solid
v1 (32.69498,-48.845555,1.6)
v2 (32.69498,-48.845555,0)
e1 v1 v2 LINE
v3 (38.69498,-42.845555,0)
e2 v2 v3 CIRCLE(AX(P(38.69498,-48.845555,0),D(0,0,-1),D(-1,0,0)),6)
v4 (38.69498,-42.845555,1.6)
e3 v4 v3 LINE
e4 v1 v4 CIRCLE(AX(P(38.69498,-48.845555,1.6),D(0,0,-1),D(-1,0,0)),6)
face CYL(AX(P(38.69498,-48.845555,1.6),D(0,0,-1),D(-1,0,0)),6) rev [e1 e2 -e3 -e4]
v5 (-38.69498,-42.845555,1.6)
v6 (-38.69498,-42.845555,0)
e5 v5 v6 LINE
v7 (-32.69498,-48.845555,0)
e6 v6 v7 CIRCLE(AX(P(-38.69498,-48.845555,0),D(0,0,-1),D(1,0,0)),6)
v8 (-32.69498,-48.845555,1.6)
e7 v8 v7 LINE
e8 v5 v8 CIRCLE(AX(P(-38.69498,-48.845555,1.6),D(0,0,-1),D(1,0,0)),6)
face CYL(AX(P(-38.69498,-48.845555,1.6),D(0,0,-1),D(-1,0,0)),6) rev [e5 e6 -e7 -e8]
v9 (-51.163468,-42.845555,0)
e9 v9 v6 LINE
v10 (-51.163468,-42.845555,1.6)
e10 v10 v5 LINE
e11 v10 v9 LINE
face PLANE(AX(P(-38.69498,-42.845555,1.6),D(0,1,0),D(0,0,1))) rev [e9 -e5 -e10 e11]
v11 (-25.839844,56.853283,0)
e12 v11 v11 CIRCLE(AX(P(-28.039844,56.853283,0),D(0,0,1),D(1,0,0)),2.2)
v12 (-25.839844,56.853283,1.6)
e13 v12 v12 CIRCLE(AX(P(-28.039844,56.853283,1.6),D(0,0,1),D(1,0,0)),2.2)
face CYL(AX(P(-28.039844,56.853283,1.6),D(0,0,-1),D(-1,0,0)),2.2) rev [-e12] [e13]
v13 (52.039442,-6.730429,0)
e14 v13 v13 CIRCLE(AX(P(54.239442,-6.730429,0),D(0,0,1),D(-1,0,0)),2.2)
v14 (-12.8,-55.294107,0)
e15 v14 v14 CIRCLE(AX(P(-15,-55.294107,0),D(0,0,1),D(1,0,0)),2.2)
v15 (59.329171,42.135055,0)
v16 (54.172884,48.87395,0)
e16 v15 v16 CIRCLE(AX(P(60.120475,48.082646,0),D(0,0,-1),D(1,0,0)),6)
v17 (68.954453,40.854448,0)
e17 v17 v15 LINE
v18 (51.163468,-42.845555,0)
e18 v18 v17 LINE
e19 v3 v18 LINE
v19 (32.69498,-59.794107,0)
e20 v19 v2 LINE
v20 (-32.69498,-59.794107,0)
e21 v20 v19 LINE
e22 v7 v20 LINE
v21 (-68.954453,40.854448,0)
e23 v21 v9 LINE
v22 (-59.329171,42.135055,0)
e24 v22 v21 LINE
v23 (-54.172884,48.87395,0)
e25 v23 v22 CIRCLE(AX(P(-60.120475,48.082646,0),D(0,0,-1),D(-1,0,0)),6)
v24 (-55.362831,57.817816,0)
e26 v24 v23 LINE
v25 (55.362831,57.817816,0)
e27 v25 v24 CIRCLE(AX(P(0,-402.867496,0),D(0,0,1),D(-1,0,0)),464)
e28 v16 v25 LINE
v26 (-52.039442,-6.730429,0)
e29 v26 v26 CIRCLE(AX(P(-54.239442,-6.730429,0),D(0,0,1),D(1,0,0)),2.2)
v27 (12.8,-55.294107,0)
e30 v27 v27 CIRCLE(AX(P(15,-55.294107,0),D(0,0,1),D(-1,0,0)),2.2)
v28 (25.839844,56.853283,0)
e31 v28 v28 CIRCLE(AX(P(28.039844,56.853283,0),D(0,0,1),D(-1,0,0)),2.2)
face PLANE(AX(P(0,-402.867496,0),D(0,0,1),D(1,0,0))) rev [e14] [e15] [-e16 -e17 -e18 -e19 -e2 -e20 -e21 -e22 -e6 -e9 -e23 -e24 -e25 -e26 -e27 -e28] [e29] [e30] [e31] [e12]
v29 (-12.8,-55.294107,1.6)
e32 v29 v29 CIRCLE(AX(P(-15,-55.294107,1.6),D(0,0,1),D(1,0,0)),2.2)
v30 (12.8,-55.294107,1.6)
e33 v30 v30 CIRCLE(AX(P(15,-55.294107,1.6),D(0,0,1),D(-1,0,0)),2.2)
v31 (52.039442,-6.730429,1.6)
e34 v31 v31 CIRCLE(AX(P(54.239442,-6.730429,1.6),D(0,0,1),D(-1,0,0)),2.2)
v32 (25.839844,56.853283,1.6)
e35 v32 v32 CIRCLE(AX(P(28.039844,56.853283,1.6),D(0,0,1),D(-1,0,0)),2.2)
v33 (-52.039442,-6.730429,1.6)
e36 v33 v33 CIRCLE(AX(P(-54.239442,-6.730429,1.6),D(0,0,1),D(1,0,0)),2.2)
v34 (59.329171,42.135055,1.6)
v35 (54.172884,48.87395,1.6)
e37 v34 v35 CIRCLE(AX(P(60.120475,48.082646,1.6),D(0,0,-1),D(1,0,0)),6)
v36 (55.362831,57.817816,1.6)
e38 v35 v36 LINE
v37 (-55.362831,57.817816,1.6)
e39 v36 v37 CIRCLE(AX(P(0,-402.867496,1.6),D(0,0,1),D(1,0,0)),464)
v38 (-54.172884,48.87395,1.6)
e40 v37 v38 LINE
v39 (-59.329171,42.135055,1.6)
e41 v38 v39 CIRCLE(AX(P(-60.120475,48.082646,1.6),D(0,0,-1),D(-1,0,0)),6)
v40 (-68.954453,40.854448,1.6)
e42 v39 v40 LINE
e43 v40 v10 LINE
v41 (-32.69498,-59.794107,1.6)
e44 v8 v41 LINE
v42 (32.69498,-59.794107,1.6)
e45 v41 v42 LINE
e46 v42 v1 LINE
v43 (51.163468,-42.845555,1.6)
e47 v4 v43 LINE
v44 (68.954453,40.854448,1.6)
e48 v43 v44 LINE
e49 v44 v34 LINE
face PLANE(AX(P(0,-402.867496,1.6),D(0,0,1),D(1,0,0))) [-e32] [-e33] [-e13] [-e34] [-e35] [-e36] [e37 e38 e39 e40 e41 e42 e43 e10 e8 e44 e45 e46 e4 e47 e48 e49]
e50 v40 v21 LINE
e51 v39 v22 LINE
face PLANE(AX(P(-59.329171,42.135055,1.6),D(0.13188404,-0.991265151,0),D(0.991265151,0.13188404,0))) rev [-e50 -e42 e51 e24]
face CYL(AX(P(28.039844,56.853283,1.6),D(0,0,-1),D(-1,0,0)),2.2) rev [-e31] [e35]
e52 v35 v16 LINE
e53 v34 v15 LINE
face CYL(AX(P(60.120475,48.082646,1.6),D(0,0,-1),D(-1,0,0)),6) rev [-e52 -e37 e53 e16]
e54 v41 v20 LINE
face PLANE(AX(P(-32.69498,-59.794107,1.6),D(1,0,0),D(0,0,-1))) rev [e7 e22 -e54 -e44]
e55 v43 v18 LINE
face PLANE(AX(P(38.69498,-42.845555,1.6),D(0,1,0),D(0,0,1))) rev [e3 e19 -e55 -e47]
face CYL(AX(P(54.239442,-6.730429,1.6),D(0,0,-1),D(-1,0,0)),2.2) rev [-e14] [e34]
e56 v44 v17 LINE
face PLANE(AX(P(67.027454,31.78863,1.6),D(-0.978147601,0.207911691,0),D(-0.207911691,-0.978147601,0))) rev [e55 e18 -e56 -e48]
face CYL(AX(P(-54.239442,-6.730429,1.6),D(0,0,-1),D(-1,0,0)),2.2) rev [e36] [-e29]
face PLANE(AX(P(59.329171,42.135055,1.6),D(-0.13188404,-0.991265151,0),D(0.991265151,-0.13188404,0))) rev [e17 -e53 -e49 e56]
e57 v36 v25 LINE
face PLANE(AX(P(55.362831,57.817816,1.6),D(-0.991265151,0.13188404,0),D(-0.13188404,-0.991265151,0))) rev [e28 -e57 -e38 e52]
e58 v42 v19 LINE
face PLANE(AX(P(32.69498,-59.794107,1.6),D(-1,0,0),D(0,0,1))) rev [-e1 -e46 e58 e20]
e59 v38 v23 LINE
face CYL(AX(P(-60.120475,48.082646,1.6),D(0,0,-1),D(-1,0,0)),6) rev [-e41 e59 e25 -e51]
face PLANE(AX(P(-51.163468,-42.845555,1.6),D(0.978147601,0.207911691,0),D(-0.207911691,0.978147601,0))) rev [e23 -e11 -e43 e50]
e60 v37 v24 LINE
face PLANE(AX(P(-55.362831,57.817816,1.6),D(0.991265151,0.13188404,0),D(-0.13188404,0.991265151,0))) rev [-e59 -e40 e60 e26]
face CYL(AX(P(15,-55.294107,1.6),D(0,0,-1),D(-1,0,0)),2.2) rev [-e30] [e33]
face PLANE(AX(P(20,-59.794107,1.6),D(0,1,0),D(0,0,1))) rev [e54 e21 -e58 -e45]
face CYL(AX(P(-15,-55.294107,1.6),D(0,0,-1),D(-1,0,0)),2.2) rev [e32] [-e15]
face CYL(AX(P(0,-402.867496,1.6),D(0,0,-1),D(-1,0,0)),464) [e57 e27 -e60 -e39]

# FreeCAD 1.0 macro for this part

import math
import FreeCAD as App
import Part
import Sketcher
Q = App.Units.Quantity

doc = App.newDocument("Part")
body = doc.addObject("PartDesign::Body", "Body")

sketch1 = doc.addObject("Sketcher::SketchObject", "Sketch")
body.addObject(sketch1)
sketch1.AttachmentSupport = (doc.XY_Plane, [""])
sketch1.MapMode = "FlatFace"
sketch1.addGeometry(Part.LineSegment(App.Vector(-55.4, 57.8, 0), App.Vector(-54.2, 48.9, 0)), False)
sketch1.addGeometry(Part.ArcOfCircle(Part.Circle(App.Vector(-60.1, 48.1, 0), App.Vector(0, 0, 1), 6), math.radians(-82), math.radians(8)), False)
sketch1.addGeometry(Part.LineSegment(App.Vector(-59.3, 42.1, 0), App.Vector(-69, 40.9, 0)), False)
sketch1.addGeometry(Part.LineSegment(App.Vector(-69, 40.9, 0), App.Vector(-67, 31.8, 0)), False)
sketch1.addGeometry(Part.LineSegment(App.Vector(-67, 31.8, 0), App.Vector(-57.6, -12.6, 0)), False)
sketch1.addGeometry(Part.LineSegment(App.Vector(-57.6, -12.6, 0), App.Vector(-51.2, -42.8, 0)), False)
sketch1.addGeometry(Part.LineSegment(App.Vector(-51.2, -42.8, 0), App.Vector(-38.7, -42.8, 0)), False)
sketch1.addGeometry(Part.ArcOfCircle(Part.Circle(App.Vector(-38.7, -48.8, 0), App.Vector(0, 0, 1), 6), math.radians(0), math.radians(90)), False)
sketch1.addGeometry(Part.LineSegment(App.Vector(-32.7, -48.8, 0), App.Vector(-32.7, -59.8, 0)), False)
sketch1.addGeometry(Part.LineSegment(App.Vector(-32.7, -59.8, 0), App.Vector(32.7, -59.8, 0)), False)
sketch1.addGeometry(Part.LineSegment(App.Vector(32.7, -59.8, 0), App.Vector(32.7, -48.8, 0)), False)
sketch1.addGeometry(Part.ArcOfCircle(Part.Circle(App.Vector(38.7, -48.8, 0), App.Vector(0, 0, 1), 6), math.radians(90), math.radians(180)), False)
sketch1.addGeometry(Part.LineSegment(App.Vector(38.7, -42.8, 0), App.Vector(51.2, -42.8, 0)), False)
sketch1.addGeometry(Part.LineSegment(App.Vector(51.2, -42.8, 0), App.Vector(57.6, -12.6, 0)), False)
sketch1.addGeometry(Part.LineSegment(App.Vector(57.6, -12.6, 0), App.Vector(67, 31.8, 0)), False)
sketch1.addGeometry(Part.LineSegment(App.Vector(67, 31.8, 0), App.Vector(69, 40.9, 0)), False)
sketch1.addGeometry(Part.LineSegment(App.Vector(69, 40.9, 0), App.Vector(59.3, 42.1, 0)), False)
sketch1.addGeometry(Part.ArcOfCircle(Part.Circle(App.Vector(60.1, 48.1, 0), App.Vector(0, 0, 1), 6), math.radians(172), math.radians(262)), False)
sketch1.addGeometry(Part.LineSegment(App.Vector(54.2, 48.9, 0), App.Vector(55.4, 57.8, 0)), False)
sketch1.addGeometry(Part.ArcOfCircle(Part.Circle(App.Vector(0, -402.9, 0), App.Vector(0, 0, 1), 464), math.radians(83.15), math.radians(90)), False)
sketch1.addGeometry(Part.ArcOfCircle(Part.Circle(App.Vector(0, -402.9, 0), App.Vector(0, 0, 1), 464), math.radians(90), math.radians(96.85)), False)
sketch1.addGeometry(Part.Circle(App.Vector(-15, -55.3, 0), App.Vector(0, 0, 1), 2.2), False)
sketch1.addGeometry(Part.Circle(App.Vector(-54.2, -6.7, 0), App.Vector(0, 0, 1), 2.2), False)
sketch1.addGeometry(Part.Circle(App.Vector(15, -55.3, 0), App.Vector(0, 0, 1), 2.2), False)
sketch1.addGeometry(Part.Circle(App.Vector(54.2, -6.7, 0), App.Vector(0, 0, 1), 2.2), False)
sketch1.addGeometry(Part.Circle(App.Vector(-28, 56.9, 0), App.Vector(0, 0, 1), 2.2), False)
sketch1.addGeometry(Part.Circle(App.Vector(28, 56.9, 0), App.Vector(0, 0, 1), 2.2), False)
sketch1.addConstraint(Sketcher.Constraint("Tangent", 0, 2, 1, 2))
sketch1.addConstraint(Sketcher.Constraint("Tangent", 1, 1, 2, 1))
sketch1.addConstraint(Sketcher.Constraint("Coincident", 2, 2, 3, 1))
sketch1.addConstraint(Sketcher.Constraint("Coincident", 3, 2, 4, 1))
sketch1.addConstraint(Sketcher.Constraint("Coincident", 4, 2, 5, 1))
sketch1.addConstraint(Sketcher.Constraint("Coincident", 5, 2, 6, 1))
sketch1.addConstraint(Sketcher.Constraint("Tangent", 6, 2, 7, 2))
sketch1.addConstraint(Sketcher.Constraint("Tangent", 7, 1, 8, 1))
sketch1.addConstraint(Sketcher.Constraint("Coincident", 8, 2, 9, 1))
sketch1.addConstraint(Sketcher.Constraint("Coincident", 9, 2, 10, 1))
sketch1.addConstraint(Sketcher.Constraint("Tangent", 10, 2, 11, 2))
sketch1.addConstraint(Sketcher.Constraint("Tangent", 11, 1, 12, 1))
sketch1.addConstraint(Sketcher.Constraint("Coincident", 12, 2, 13, 1))
sketch1.addConstraint(Sketcher.Constraint("Coincident", 13, 2, 14, 1))
sketch1.addConstraint(Sketcher.Constraint("Coincident", 14, 2, 15, 1))
sketch1.addConstraint(Sketcher.Constraint("Coincident", 15, 2, 16, 1))
sketch1.addConstraint(Sketcher.Constraint("Tangent", 16, 2, 17, 2))
sketch1.addConstraint(Sketcher.Constraint("Tangent", 17, 1, 18, 1))
sketch1.addConstraint(Sketcher.Constraint("Coincident", 18, 2, 19, 1))
sketch1.addConstraint(Sketcher.Constraint("Tangent", 19, 2, 20, 1))
sketch1.addConstraint(Sketcher.Constraint("Coincident", 20, 2, 0, 1))
sketch1.addConstraint(Sketcher.Constraint("Horizontal", 6))
sketch1.addConstraint(Sketcher.Constraint("Vertical", 8))
sketch1.addConstraint(Sketcher.Constraint("Horizontal", 9))
sketch1.addConstraint(Sketcher.Constraint("Vertical", 10))
sketch1.addConstraint(Sketcher.Constraint("Horizontal", 12))
sketch1.addConstraint(Sketcher.Constraint("Equal", 1, 7))
sketch1.addConstraint(Sketcher.Constraint("Equal", 7, 11))
sketch1.addConstraint(Sketcher.Constraint("Equal", 11, 17))
sketch1.addConstraint(Sketcher.Constraint("Equal", 19, 20))
sketch1.addConstraint(Sketcher.Constraint("Equal", 21, 22))
sketch1.addConstraint(Sketcher.Constraint("Equal", 22, 23))
sketch1.addConstraint(Sketcher.Constraint("Equal", 23, 24))
sketch1.addConstraint(Sketcher.Constraint("Equal", 24, 25))
sketch1.addConstraint(Sketcher.Constraint("Equal", 25, 26))
sketch1.addConstraint(Sketcher.Constraint("Symmetric", 7, 3, 11, 3, -2))
sketch1.addConstraint(Sketcher.Constraint("Symmetric", 1, 3, 17, 3, -2))
sketch1.addConstraint(Sketcher.Constraint("Symmetric", 21, 3, 23, 3, -2))
sketch1.addConstraint(Sketcher.Constraint("Symmetric", 22, 3, 24, 3, -2))
sketch1.addConstraint(Sketcher.Constraint("Symmetric", 25, 3, 26, 3, -2))
sketch1.addConstraint(Sketcher.Constraint("Symmetric", 4, 2, 13, 2, -2))
sketch1.addConstraint(Sketcher.Constraint("Symmetric", 3, 2, 14, 2, -2))
sketch1.addConstraint(Sketcher.Constraint("Symmetric", 2, 2, 15, 2, -2))
sketch1.addConstraint(Sketcher.Constraint("Symmetric", 18, 2, 20, 2, -2))
sketch1.addConstraint(Sketcher.Constraint("PointOnObject", 19, 2, -2))
sketch1.addConstraint(Sketcher.Constraint("Perpendicular", 0, 2))
sketch1.addConstraint(Sketcher.Constraint("Parallel", 3, 4))
sketch1.addConstraint(Sketcher.Constraint("Parallel", 4, 5))
sketch1.addConstraint(Sketcher.Constraint("Parallel", 13, 14))
sketch1.addConstraint(Sketcher.Constraint("Radius", 1, 6.0))
sketch1.addConstraint(Sketcher.Constraint("Radius", 19, 464.0))
sketch1.addConstraint(Sketcher.Constraint("Diameter", 21, 4.4))
sketch1.addConstraint(Sketcher.Constraint("Angle", 3, Q("-78 deg")))
sketch1.addConstraint(Sketcher.Constraint("DistanceX", 21, 3, -1, 1, 15.0))
sketch1.addConstraint(Sketcher.Constraint("DistanceY", 8, 2, 21, 3, 4.5))
sketch1.addConstraint(Sketcher.Constraint("DistanceX", 2, 2, 3, 2, 1.926999))
sketch1.addConstraint(Sketcher.Constraint("Distance", 2, 9.710098))
sketch1.addConstraint(Sketcher.Constraint("DistanceX", 9, 1, 9, 2, 65.389961))
sketch1.addConstraint(Sketcher.Constraint("DistanceY", 8, 2, 8, 1, 10.948551))
sketch1.addConstraint(Sketcher.Constraint("DistanceY", 7, 3, 1, 3, 96.928201))
sketch1.addConstraint(Sketcher.Constraint("DistanceX", 22, 3, 25, 3, 26.199599))
sketch1.addConstraint(Sketcher.Constraint("DistanceY", 4, 2, 3, 2, 44.3454))
sketch1.addConstraint(Sketcher.Constraint("DistanceX", 6, 1, 6, 2, 12.468488))
sketch1.addConstraint(Sketcher.Constraint("DistanceY", 22, 3, -1, 1, 6.730429))
sketch1.addConstraint(Sketcher.Constraint("DistanceY", -1, 1, 0, 2, 48.87395))
sketch1.addConstraint(Sketcher.Constraint("DistanceY", -1, 1, 2, 2, 40.854448))
sketch1.addConstraint(Sketcher.Constraint("DistanceX", -1, 1, 18, 2, 55.362831))
sketch1.addConstraint(Sketcher.Constraint("DistanceX", 1, 3, 25, 3, 32.080632))
sketch1.addConstraint(Sketcher.Constraint("DistanceY", 22, 3, 25, 3, 63.583712))
pad1 = doc.addObject("PartDesign::Pad", "Pad")
body.addObject(pad1)
pad1.Profile = sketch1
pad1.Length = 1.6

doc.recompute()
